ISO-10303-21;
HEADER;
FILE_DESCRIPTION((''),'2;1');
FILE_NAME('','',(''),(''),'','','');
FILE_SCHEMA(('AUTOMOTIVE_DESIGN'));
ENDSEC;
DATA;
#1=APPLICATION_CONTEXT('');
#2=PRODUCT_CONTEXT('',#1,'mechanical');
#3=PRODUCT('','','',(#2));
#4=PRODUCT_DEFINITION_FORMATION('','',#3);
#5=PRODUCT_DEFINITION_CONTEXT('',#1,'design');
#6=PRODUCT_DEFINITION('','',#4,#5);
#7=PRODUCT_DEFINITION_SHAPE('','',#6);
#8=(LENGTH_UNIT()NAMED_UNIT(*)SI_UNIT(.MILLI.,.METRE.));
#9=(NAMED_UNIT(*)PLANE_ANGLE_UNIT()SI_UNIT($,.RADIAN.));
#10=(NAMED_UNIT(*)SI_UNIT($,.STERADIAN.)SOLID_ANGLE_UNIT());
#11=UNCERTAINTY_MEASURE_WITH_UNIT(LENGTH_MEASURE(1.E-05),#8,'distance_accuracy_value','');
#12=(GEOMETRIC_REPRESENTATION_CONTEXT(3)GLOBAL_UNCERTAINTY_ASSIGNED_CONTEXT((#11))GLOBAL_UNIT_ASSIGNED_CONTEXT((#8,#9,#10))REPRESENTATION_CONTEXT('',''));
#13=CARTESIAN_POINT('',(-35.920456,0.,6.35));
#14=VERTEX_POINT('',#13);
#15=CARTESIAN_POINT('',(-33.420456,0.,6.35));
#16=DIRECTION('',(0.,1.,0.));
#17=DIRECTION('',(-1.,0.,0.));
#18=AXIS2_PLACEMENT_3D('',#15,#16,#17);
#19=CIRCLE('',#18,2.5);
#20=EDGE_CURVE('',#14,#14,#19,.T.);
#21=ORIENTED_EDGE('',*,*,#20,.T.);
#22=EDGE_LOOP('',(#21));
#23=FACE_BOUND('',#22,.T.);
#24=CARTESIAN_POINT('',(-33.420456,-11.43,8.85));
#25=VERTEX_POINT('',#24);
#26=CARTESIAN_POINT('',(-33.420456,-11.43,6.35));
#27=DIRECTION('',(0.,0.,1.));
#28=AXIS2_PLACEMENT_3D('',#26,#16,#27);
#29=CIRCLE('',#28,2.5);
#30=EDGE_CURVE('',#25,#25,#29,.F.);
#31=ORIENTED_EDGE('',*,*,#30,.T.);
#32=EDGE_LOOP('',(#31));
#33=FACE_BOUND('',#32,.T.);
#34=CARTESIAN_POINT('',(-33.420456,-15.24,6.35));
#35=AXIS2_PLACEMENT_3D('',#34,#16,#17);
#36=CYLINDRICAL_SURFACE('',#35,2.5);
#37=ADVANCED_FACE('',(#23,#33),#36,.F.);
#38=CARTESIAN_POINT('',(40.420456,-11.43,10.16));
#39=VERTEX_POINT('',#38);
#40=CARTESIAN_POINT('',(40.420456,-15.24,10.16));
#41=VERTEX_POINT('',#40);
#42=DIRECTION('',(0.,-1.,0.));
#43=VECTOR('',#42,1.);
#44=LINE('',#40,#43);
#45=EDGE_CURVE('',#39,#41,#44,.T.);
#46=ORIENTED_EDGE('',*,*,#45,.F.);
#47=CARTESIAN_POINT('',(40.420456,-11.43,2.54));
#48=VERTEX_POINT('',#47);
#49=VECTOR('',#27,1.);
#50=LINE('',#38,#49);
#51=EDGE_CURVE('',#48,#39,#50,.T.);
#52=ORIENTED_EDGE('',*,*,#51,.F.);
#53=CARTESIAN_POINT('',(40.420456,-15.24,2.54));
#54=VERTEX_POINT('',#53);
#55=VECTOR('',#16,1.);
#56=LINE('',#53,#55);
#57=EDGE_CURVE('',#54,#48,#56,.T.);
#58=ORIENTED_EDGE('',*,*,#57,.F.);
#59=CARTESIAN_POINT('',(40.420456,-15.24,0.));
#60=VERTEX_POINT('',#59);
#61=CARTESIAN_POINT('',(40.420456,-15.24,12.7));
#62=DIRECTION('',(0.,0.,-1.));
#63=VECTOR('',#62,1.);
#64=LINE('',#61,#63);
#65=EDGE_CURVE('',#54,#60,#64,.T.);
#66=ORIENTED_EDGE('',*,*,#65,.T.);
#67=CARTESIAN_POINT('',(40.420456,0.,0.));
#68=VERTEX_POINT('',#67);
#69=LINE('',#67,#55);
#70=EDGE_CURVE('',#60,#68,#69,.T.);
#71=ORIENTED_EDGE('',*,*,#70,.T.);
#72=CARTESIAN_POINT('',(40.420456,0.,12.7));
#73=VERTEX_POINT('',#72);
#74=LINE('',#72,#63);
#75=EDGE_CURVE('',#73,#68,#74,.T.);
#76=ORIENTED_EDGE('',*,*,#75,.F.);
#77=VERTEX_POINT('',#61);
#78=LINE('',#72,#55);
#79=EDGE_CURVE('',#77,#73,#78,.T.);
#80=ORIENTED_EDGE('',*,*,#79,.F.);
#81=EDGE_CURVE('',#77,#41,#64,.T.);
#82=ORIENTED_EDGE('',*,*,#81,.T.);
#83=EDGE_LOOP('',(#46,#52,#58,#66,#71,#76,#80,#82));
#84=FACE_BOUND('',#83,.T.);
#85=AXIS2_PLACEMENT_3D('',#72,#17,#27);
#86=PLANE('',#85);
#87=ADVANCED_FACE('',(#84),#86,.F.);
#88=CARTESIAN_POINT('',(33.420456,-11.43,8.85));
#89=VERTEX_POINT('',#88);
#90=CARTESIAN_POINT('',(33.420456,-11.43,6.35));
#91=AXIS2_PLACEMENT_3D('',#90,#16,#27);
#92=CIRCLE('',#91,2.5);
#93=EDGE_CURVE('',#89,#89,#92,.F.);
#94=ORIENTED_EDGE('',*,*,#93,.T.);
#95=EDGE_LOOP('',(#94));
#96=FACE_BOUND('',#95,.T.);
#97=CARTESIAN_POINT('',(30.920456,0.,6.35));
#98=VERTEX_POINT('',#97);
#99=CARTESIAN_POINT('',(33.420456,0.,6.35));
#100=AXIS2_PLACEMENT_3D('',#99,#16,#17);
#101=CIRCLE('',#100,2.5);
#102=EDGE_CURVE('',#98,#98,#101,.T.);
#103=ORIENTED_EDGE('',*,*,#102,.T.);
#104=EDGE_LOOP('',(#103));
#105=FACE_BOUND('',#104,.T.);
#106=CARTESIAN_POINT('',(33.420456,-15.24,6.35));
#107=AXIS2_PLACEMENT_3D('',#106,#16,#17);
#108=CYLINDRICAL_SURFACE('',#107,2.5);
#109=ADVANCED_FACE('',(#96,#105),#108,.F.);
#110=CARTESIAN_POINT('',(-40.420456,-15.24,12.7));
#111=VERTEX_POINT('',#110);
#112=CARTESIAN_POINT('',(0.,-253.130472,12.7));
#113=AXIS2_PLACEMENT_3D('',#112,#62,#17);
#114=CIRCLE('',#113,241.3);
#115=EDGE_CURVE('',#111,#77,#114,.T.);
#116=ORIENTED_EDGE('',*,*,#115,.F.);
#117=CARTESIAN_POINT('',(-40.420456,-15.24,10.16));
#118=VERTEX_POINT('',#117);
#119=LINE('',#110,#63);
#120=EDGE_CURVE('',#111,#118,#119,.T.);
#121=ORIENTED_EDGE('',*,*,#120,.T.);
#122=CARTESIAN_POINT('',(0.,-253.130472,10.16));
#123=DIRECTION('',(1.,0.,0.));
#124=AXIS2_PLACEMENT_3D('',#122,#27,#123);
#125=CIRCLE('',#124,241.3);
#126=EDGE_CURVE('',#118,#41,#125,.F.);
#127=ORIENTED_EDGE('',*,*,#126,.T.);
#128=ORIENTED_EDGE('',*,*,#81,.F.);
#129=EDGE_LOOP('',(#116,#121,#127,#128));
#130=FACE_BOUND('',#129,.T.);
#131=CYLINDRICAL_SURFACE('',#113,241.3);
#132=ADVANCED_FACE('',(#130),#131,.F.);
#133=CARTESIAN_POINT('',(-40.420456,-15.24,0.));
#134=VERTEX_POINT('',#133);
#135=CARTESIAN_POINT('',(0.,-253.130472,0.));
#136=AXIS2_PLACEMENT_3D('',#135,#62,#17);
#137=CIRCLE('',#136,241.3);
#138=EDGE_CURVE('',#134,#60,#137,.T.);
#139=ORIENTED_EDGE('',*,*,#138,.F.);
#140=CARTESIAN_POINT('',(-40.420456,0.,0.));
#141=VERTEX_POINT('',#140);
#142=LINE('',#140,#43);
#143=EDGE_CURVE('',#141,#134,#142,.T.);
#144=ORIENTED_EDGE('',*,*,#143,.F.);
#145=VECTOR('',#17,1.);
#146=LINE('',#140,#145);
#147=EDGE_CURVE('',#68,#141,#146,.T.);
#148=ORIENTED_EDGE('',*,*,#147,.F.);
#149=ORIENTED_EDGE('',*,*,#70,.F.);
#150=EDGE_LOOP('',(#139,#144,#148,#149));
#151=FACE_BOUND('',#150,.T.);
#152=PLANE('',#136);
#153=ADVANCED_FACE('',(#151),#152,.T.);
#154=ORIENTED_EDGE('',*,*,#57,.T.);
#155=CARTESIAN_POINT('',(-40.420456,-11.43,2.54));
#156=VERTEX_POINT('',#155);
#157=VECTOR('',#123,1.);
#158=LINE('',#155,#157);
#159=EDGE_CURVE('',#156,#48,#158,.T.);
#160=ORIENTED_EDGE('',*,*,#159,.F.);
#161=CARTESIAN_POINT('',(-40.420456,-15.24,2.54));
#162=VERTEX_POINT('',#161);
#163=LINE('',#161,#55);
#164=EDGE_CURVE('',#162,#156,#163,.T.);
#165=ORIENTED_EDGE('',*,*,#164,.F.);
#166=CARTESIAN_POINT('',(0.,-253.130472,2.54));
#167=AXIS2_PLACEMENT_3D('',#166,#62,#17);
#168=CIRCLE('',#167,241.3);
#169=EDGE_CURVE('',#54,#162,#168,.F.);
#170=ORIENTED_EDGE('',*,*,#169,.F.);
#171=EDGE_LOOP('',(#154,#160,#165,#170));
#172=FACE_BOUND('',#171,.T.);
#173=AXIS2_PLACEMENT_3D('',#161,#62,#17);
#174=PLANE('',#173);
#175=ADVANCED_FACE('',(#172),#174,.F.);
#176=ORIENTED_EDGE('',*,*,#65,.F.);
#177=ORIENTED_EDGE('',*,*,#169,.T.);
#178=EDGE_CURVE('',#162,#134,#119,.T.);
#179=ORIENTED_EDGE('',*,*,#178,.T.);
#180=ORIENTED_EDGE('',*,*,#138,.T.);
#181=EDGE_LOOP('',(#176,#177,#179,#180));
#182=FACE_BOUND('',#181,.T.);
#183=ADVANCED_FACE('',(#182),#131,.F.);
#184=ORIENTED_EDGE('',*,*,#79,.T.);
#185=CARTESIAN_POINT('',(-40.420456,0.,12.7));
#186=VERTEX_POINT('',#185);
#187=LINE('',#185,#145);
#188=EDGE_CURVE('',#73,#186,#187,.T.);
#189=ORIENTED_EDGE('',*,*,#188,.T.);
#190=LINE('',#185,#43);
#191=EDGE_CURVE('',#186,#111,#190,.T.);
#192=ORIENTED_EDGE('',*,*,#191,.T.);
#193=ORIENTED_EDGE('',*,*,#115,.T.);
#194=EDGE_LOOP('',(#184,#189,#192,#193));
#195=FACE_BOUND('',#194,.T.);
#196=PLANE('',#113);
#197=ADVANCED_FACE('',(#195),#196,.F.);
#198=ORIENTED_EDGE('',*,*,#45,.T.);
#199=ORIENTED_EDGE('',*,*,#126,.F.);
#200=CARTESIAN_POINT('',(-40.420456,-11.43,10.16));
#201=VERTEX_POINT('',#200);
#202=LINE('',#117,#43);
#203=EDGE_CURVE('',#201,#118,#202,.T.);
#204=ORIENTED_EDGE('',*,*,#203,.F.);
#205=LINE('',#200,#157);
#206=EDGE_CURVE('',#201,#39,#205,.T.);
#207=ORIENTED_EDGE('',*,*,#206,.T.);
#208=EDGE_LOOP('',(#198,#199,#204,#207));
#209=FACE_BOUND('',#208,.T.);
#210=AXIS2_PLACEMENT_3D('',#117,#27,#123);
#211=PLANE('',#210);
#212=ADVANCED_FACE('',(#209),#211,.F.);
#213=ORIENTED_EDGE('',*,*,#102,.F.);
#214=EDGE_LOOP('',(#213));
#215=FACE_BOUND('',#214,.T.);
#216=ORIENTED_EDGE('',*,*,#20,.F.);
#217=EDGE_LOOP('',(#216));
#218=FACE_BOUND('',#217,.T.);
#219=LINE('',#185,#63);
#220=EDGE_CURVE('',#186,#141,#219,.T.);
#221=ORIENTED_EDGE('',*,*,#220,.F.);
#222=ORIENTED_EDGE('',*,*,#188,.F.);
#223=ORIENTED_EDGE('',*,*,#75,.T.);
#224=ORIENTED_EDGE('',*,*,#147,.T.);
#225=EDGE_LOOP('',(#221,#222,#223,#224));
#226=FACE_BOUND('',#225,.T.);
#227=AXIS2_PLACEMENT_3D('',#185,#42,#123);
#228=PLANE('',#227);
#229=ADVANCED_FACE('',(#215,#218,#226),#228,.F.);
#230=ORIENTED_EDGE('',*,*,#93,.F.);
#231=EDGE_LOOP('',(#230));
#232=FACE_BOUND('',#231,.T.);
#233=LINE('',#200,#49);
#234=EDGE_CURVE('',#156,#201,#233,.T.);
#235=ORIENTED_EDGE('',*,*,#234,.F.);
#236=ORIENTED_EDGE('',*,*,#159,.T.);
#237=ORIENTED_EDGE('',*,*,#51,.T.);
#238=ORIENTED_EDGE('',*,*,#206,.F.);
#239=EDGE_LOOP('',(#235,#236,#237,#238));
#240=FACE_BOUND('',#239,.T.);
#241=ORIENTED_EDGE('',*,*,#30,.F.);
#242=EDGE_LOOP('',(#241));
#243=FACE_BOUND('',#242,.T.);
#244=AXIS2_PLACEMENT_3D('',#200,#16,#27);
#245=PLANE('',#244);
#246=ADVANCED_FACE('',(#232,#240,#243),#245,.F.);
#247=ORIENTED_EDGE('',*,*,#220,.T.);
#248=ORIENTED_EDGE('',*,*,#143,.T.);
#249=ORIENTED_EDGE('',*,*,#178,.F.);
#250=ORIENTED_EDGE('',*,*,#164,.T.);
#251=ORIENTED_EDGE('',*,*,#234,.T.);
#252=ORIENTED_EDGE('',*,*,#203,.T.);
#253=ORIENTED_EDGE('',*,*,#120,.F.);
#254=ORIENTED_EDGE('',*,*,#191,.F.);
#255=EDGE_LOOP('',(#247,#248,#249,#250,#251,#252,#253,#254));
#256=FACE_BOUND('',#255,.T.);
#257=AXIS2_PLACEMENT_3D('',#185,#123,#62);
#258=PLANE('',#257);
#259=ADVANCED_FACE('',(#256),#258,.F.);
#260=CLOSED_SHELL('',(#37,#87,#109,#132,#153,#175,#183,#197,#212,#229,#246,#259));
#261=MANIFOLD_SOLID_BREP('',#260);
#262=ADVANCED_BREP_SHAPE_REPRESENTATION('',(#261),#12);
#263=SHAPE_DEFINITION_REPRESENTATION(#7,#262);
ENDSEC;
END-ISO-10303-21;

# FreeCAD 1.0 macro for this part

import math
import FreeCAD as App
import Part
import Sketcher

V = App.Vector
Q = App.Units.Quantity

doc = App.newDocument("Part")
body = doc.addObject("PartDesign::Body", "Body")

# Sketch on XY plane
sketch1 = doc.addObject("Sketcher::SketchObject", "Sketch")
body.addObject(sketch1)
sketch1.AttachmentSupport = (doc.XY_Plane, [""])
sketch1.MapMode = "FlatFace"
sketch1.addGeometry([
    Part.LineSegment(V(40, 0, 0), V(-40, 0, 0)),
    Part.LineSegment(V(-40, 0, 0), V(-40, -15, 0)),
    Part.ArcOfCircle(Part.Circle(V(0, -253, 0), V(0, 0, 1), 241), math.radians(80.36), math.radians(99.64)),
    Part.LineSegment(V(40, -15, 0), V(40, 0, 0)),
], False)
sketch1.addConstraint([
    Sketcher.Constraint("Coincident", 0, 2, 1, 1),
    Sketcher.Constraint("Coincident", 1, 2, 2, 2),
    Sketcher.Constraint("Coincident", 2, 1, 3, 1),
    Sketcher.Constraint("Coincident", 3, 2, 0, 1),
    Sketcher.Constraint("Horizontal", 0),
    Sketcher.Constraint("Vertical", 1),
    Sketcher.Constraint("Vertical", 3),
    Sketcher.Constraint("Symmetric", 0, 2, 3, 2, -1, 1),
    Sketcher.Constraint("PointOnObject", 2, 3, -2),
    Sketcher.Constraint("Radius", 2, Q("9.5 in")),
    Sketcher.Constraint("DistanceY", 1, 2, 1, 1, Q("0.6 in")),
    Sketcher.Constraint("DistanceX", 0, 2, 0, 1, 80.840913),
])
pad1 = doc.addObject("PartDesign::Pad", "Pad")
body.addObject(pad1)
pad1.Profile = sketch1
pad1.Length = Q("0.5 in")

# Sketch on XZ plane
sketch2 = doc.addObject("Sketcher::SketchObject", "Sketch001")
body.addObject(sketch2)
sketch2.AttachmentSupport = (doc.XZ_Plane, [""])
sketch2.MapMode = "FlatFace"
sketch2.addGeometry([
    Part.Circle(V(-33.4, 6.3, 0), V(0, 0, 1), 2.5),
    Part.Circle(V(33.4, 6.3, 0), V(0, 0, 1), 2.5),
], False)
sketch2.addConstraint([
    Sketcher.Constraint("Equal", 0, 1),
    Sketcher.Constraint("Symmetric", 0, 3, 1, 3, -2),
    Sketcher.Constraint("Diameter", 0, 5.0),
    Sketcher.Constraint("DistanceY", -1, 1, 0, 3, Q("0.25 in")),
    Sketcher.Constraint("DistanceX", 0, 3, -1, 1, 33.420456),
])
pocket1 = doc.addObject("PartDesign::Pocket", "Pocket")
body.addObject(pocket1)
pocket1.Profile = sketch2
pocket1.Type = "ThroughAll"
pocket1.Reversed = True

# Sketch on YZ plane
sketch3 = doc.addObject("Sketcher::SketchObject", "Sketch002")
body.addObject(sketch3)
sketch3.AttachmentSupport = (doc.YZ_Plane, [""])
sketch3.MapMode = "FlatFace"
sketch3.AttachmentOffset = App.Placement(V(0, 0, 40.420456), App.Rotation())
sketch3.addGeometry([
    Part.LineSegment(V(-11.4, 10.2, 0), V(-15.2, 10.2, 0)),
    Part.LineSegment(V(-15.2, 10.2, 0), V(-15.2, 2.5, 0)),
    Part.LineSegment(V(-15.2, 2.5, 0), V(-11.4, 2.5, 0)),
    Part.LineSegment(V(-11.4, 2.5, 0), V(-11.4, 10.2, 0)),
], False)
sketch3.addConstraint([
    Sketcher.Constraint("Coincident", 0, 2, 1, 1),
    Sketcher.Constraint("Coincident", 1, 2, 2, 1),
    Sketcher.Constraint("Coincident", 2, 2, 3, 1),
    Sketcher.Constraint("Coincident", 3, 2, 0, 1),
    Sketcher.Constraint("Horizontal", 0),
    Sketcher.Constraint("Vertical", 1),
    Sketcher.Constraint("Horizontal", 2),
    Sketcher.Constraint("Vertical", 3),
    Sketcher.Constraint("DistanceY", 1, 2, 1, 1, Q("0.3 in")),
    Sketcher.Constraint("DistanceX", 0, 2, 0, 1, Q("0.15 in")),
    Sketcher.Constraint("DistanceX", 0, 2, -1, 1, Q("0.6 in")),
    Sketcher.Constraint("DistanceY", -1, 1, 0, 2, Q("0.4 in")),
])
pocket2 = doc.addObject("PartDesign::Pocket", "Pocket001")
body.addObject(pocket2)
pocket2.Profile = sketch3
pocket2.Type = "ThroughAll"

doc.recompute()
